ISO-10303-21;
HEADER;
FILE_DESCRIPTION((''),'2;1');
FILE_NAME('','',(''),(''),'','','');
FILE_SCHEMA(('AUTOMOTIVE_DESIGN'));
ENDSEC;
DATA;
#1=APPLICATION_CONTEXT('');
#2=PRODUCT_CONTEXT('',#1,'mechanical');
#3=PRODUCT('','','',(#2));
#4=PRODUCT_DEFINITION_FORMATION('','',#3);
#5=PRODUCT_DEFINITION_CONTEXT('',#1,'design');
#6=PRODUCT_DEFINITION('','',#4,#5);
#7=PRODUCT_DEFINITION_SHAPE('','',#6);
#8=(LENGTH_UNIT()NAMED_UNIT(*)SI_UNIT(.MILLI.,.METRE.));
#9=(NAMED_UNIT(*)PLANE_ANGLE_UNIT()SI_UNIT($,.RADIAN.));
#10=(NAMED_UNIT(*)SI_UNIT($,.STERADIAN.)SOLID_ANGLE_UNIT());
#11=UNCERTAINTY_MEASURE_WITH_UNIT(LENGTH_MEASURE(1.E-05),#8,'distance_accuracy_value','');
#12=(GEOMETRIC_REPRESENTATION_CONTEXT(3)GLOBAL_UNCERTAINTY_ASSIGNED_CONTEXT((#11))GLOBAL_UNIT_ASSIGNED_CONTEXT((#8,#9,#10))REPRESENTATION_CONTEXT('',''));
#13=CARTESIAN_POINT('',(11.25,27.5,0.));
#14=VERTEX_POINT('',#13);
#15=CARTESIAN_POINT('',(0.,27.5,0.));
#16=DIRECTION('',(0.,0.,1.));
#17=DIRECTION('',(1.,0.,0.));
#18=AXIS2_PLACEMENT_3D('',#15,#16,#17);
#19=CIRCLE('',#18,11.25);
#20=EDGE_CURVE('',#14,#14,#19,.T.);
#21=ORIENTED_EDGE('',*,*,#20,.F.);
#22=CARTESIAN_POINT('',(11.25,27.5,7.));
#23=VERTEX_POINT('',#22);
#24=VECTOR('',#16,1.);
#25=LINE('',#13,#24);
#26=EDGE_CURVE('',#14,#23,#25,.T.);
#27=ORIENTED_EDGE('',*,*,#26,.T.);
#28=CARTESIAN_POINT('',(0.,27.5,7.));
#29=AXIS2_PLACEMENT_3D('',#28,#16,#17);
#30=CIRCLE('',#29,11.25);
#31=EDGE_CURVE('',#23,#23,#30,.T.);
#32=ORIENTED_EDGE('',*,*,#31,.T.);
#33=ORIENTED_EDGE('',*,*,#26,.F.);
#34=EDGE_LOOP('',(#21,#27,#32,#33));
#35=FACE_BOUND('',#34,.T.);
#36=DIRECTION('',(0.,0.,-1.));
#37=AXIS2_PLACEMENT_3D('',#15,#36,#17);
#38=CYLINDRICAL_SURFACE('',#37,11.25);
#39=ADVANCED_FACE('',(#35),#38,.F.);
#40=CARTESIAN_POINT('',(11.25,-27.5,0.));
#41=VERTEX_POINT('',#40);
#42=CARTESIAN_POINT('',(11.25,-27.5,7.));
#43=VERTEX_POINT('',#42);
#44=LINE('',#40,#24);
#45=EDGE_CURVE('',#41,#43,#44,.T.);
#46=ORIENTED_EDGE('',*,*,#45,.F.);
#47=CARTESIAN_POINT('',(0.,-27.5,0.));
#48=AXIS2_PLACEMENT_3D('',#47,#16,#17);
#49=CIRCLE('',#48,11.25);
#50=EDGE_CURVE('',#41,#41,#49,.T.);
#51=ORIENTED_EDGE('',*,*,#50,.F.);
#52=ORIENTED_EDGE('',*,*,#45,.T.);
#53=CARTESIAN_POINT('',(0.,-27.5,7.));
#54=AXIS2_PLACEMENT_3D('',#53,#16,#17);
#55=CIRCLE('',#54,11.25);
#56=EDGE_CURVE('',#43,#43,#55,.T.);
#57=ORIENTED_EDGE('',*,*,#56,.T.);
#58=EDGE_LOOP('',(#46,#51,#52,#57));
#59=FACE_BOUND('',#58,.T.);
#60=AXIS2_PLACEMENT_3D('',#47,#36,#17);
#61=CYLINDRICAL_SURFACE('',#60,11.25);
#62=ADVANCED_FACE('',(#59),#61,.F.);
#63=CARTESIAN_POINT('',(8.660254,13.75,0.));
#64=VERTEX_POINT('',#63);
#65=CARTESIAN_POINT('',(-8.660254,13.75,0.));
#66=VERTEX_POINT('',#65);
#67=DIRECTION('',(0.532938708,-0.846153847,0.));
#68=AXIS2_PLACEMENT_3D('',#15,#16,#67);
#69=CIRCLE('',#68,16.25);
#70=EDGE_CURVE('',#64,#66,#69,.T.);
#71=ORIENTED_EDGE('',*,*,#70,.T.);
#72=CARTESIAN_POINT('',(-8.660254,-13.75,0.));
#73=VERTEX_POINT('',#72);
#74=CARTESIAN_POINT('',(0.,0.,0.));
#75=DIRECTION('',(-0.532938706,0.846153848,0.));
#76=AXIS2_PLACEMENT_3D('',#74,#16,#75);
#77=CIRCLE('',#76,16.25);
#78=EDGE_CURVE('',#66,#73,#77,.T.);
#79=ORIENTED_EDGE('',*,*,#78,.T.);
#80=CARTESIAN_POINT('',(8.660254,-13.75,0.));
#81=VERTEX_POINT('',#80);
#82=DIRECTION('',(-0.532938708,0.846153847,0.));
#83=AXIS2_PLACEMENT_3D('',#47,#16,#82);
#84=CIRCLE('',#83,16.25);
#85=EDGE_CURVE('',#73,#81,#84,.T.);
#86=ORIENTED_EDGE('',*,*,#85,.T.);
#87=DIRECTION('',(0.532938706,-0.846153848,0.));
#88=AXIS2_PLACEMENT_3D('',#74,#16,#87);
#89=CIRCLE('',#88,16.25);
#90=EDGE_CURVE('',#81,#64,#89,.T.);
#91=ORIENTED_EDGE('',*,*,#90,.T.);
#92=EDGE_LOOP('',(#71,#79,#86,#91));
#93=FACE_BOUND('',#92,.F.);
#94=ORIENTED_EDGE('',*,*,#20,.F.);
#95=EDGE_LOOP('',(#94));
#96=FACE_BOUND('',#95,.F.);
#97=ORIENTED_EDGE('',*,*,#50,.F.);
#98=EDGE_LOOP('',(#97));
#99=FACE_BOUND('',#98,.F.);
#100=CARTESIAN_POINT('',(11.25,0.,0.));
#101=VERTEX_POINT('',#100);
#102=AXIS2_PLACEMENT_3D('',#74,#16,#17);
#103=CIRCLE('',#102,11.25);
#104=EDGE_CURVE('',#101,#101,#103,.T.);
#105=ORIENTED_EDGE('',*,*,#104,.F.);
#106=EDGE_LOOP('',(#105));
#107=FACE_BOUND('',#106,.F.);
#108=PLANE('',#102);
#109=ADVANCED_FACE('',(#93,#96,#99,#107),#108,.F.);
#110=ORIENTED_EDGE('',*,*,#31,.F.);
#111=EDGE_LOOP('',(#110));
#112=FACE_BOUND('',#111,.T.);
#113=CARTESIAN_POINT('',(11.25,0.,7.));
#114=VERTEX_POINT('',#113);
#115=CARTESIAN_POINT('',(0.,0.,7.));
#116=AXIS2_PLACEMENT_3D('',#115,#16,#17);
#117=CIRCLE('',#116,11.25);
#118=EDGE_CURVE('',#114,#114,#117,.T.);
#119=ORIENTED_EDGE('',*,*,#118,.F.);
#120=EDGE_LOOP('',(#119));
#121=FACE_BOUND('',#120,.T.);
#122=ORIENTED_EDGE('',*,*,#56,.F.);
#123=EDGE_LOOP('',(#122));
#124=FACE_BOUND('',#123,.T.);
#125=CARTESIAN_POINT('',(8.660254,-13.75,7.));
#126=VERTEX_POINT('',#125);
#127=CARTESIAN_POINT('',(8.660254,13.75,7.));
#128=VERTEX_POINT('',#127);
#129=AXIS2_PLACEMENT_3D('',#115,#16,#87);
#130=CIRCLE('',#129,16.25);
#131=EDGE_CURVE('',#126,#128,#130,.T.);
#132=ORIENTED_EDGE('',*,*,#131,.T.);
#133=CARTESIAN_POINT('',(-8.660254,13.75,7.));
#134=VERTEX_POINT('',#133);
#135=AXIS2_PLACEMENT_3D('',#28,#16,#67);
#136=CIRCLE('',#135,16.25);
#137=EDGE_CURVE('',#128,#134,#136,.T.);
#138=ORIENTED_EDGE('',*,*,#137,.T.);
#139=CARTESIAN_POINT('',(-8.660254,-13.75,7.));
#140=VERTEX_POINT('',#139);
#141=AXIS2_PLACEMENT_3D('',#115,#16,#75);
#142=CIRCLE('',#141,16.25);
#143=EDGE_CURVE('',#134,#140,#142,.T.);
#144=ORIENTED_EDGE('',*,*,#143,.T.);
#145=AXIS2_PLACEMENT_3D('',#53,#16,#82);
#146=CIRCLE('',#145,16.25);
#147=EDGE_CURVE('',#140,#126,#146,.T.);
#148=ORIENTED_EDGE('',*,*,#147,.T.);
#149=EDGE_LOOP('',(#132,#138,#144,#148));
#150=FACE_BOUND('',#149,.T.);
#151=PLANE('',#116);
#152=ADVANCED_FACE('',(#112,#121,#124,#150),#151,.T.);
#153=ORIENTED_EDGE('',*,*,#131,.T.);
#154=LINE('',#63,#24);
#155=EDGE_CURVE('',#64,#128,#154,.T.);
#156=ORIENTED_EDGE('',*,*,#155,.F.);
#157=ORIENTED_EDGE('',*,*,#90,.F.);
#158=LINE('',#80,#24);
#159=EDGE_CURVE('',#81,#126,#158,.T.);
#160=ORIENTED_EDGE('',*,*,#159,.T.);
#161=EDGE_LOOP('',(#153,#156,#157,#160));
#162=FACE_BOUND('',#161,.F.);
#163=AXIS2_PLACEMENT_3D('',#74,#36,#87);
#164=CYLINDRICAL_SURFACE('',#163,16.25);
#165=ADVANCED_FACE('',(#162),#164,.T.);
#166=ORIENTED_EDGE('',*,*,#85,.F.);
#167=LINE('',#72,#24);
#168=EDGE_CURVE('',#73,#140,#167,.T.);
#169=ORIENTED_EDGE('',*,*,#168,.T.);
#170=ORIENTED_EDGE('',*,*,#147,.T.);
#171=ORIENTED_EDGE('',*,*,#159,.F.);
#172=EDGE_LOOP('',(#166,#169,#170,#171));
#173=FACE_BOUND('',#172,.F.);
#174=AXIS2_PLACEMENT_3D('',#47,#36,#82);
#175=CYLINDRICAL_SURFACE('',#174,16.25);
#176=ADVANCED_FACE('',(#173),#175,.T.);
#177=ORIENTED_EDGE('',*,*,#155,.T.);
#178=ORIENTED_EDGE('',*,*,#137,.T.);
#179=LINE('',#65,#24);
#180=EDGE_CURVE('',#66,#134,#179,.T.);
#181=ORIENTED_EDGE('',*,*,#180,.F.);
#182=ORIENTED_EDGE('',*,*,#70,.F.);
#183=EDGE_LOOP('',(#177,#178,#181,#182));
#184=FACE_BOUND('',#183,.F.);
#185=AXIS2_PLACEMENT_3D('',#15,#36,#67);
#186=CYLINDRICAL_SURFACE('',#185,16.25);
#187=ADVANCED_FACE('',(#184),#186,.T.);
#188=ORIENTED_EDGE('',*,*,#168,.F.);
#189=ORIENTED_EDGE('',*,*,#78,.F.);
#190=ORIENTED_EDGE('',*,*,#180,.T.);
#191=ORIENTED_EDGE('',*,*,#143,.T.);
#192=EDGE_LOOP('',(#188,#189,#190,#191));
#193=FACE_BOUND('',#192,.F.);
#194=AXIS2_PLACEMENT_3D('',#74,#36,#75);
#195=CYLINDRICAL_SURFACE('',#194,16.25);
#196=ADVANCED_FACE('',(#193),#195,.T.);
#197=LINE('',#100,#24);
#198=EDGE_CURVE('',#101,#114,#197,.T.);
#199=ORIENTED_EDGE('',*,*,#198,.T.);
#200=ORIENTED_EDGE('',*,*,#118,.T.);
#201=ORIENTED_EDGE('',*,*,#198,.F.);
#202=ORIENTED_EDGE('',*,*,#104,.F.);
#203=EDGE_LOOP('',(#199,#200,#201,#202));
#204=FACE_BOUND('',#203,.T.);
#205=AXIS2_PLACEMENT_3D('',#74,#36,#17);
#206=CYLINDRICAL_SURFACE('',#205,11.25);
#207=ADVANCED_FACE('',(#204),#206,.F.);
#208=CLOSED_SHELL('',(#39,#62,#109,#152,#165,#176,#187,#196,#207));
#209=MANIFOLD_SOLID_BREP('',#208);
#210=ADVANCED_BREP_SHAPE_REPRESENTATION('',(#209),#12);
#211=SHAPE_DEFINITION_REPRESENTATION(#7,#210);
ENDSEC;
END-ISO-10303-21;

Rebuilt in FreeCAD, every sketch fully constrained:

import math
import FreeCAD as App
import Part
import Sketcher
from FreeCAD import Vector

doc = App.newDocument("Part")
body = doc.addObject("PartDesign::Body", "Body")

# Sketch on XY plane
sketch1 = body.newObject("Sketcher::SketchObject", "Sketch")
sketch1.AttachmentSupport = (doc.getObject("XY_Plane"), [""])
sketch1.MapMode = "FlatFace"
sketch1.addGeometry([
    Part.ArcOfCircle(Part.Circle(Vector(0, 0, 0), Vector(0, 0, 1), 16.25), math.radians(-57.795773), math.radians(57.795773)),  # 0
    Part.ArcOfCircle(Part.Circle(Vector(0, 27.5, 0), Vector(0, 0, 1), 16.25), math.radians(-57.795773), math.radians(237.795773)),  # 1
    Part.ArcOfCircle(Part.Circle(Vector(0, 0, 0), Vector(0, 0, 1), 16.25), math.radians(122.204227), math.radians(237.795773)),  # 2
    Part.ArcOfCircle(Part.Circle(Vector(0, -27.5, 0), Vector(0, 0, 1), 16.25), math.radians(122.204227), math.radians(417.795773)),  # 3
    Part.Circle(Vector(0, -27.5, 0), Vector(0, 0, 1), 11.25),  # 4
    Part.Circle(Vector(0, 0, 0), Vector(0, 0, 1), 11.25),  # 5
    Part.Circle(Vector(0, 27.5, 0), Vector(0, 0, 1), 11.25),  # 6
], False)
sketch1.addConstraint([
    Sketcher.Constraint("Coincident", 0, 2, 1, 1),
    Sketcher.Constraint("Coincident", 1, 2, 2, 1),
    Sketcher.Constraint("Coincident", 2, 2, 3, 1),
    Sketcher.Constraint("Coincident", 3, 2, 0, 1),
    Sketcher.Constraint("Coincident", 0, 3, -1, 1),
    Sketcher.Constraint("Coincident", 2, 3, -1, 1),
    Sketcher.Constraint("Coincident", 5, 3, -1, 1),
    Sketcher.Constraint("Coincident", 4, 3, 3, 3),
    Sketcher.Constraint("Coincident", 6, 3, 1, 3),
    Sketcher.Constraint("Equal", 0, 1),
    Sketcher.Constraint("Equal", 1, 2),
    Sketcher.Constraint("Equal", 2, 3),
    Sketcher.Constraint("Equal", 4, 5),
    Sketcher.Constraint("Equal", 5, 6),
    Sketcher.Constraint("Symmetric", 1, 3, 3, 3, -1, 1),
    Sketcher.Constraint("PointOnObject", 1, 3, -2),
    Sketcher.Constraint("Diameter", 4, 22.5),
    Sketcher.Constraint("Radius", 0, 16.25),
    Sketcher.Constraint("DistanceY", 3, 3, 1, 3, 55.0),
])
pad1 = body.newObject("PartDesign::Pad", "Pad")
pad1.Profile = sketch1
pad1.Length = 7

doc.recompute()
